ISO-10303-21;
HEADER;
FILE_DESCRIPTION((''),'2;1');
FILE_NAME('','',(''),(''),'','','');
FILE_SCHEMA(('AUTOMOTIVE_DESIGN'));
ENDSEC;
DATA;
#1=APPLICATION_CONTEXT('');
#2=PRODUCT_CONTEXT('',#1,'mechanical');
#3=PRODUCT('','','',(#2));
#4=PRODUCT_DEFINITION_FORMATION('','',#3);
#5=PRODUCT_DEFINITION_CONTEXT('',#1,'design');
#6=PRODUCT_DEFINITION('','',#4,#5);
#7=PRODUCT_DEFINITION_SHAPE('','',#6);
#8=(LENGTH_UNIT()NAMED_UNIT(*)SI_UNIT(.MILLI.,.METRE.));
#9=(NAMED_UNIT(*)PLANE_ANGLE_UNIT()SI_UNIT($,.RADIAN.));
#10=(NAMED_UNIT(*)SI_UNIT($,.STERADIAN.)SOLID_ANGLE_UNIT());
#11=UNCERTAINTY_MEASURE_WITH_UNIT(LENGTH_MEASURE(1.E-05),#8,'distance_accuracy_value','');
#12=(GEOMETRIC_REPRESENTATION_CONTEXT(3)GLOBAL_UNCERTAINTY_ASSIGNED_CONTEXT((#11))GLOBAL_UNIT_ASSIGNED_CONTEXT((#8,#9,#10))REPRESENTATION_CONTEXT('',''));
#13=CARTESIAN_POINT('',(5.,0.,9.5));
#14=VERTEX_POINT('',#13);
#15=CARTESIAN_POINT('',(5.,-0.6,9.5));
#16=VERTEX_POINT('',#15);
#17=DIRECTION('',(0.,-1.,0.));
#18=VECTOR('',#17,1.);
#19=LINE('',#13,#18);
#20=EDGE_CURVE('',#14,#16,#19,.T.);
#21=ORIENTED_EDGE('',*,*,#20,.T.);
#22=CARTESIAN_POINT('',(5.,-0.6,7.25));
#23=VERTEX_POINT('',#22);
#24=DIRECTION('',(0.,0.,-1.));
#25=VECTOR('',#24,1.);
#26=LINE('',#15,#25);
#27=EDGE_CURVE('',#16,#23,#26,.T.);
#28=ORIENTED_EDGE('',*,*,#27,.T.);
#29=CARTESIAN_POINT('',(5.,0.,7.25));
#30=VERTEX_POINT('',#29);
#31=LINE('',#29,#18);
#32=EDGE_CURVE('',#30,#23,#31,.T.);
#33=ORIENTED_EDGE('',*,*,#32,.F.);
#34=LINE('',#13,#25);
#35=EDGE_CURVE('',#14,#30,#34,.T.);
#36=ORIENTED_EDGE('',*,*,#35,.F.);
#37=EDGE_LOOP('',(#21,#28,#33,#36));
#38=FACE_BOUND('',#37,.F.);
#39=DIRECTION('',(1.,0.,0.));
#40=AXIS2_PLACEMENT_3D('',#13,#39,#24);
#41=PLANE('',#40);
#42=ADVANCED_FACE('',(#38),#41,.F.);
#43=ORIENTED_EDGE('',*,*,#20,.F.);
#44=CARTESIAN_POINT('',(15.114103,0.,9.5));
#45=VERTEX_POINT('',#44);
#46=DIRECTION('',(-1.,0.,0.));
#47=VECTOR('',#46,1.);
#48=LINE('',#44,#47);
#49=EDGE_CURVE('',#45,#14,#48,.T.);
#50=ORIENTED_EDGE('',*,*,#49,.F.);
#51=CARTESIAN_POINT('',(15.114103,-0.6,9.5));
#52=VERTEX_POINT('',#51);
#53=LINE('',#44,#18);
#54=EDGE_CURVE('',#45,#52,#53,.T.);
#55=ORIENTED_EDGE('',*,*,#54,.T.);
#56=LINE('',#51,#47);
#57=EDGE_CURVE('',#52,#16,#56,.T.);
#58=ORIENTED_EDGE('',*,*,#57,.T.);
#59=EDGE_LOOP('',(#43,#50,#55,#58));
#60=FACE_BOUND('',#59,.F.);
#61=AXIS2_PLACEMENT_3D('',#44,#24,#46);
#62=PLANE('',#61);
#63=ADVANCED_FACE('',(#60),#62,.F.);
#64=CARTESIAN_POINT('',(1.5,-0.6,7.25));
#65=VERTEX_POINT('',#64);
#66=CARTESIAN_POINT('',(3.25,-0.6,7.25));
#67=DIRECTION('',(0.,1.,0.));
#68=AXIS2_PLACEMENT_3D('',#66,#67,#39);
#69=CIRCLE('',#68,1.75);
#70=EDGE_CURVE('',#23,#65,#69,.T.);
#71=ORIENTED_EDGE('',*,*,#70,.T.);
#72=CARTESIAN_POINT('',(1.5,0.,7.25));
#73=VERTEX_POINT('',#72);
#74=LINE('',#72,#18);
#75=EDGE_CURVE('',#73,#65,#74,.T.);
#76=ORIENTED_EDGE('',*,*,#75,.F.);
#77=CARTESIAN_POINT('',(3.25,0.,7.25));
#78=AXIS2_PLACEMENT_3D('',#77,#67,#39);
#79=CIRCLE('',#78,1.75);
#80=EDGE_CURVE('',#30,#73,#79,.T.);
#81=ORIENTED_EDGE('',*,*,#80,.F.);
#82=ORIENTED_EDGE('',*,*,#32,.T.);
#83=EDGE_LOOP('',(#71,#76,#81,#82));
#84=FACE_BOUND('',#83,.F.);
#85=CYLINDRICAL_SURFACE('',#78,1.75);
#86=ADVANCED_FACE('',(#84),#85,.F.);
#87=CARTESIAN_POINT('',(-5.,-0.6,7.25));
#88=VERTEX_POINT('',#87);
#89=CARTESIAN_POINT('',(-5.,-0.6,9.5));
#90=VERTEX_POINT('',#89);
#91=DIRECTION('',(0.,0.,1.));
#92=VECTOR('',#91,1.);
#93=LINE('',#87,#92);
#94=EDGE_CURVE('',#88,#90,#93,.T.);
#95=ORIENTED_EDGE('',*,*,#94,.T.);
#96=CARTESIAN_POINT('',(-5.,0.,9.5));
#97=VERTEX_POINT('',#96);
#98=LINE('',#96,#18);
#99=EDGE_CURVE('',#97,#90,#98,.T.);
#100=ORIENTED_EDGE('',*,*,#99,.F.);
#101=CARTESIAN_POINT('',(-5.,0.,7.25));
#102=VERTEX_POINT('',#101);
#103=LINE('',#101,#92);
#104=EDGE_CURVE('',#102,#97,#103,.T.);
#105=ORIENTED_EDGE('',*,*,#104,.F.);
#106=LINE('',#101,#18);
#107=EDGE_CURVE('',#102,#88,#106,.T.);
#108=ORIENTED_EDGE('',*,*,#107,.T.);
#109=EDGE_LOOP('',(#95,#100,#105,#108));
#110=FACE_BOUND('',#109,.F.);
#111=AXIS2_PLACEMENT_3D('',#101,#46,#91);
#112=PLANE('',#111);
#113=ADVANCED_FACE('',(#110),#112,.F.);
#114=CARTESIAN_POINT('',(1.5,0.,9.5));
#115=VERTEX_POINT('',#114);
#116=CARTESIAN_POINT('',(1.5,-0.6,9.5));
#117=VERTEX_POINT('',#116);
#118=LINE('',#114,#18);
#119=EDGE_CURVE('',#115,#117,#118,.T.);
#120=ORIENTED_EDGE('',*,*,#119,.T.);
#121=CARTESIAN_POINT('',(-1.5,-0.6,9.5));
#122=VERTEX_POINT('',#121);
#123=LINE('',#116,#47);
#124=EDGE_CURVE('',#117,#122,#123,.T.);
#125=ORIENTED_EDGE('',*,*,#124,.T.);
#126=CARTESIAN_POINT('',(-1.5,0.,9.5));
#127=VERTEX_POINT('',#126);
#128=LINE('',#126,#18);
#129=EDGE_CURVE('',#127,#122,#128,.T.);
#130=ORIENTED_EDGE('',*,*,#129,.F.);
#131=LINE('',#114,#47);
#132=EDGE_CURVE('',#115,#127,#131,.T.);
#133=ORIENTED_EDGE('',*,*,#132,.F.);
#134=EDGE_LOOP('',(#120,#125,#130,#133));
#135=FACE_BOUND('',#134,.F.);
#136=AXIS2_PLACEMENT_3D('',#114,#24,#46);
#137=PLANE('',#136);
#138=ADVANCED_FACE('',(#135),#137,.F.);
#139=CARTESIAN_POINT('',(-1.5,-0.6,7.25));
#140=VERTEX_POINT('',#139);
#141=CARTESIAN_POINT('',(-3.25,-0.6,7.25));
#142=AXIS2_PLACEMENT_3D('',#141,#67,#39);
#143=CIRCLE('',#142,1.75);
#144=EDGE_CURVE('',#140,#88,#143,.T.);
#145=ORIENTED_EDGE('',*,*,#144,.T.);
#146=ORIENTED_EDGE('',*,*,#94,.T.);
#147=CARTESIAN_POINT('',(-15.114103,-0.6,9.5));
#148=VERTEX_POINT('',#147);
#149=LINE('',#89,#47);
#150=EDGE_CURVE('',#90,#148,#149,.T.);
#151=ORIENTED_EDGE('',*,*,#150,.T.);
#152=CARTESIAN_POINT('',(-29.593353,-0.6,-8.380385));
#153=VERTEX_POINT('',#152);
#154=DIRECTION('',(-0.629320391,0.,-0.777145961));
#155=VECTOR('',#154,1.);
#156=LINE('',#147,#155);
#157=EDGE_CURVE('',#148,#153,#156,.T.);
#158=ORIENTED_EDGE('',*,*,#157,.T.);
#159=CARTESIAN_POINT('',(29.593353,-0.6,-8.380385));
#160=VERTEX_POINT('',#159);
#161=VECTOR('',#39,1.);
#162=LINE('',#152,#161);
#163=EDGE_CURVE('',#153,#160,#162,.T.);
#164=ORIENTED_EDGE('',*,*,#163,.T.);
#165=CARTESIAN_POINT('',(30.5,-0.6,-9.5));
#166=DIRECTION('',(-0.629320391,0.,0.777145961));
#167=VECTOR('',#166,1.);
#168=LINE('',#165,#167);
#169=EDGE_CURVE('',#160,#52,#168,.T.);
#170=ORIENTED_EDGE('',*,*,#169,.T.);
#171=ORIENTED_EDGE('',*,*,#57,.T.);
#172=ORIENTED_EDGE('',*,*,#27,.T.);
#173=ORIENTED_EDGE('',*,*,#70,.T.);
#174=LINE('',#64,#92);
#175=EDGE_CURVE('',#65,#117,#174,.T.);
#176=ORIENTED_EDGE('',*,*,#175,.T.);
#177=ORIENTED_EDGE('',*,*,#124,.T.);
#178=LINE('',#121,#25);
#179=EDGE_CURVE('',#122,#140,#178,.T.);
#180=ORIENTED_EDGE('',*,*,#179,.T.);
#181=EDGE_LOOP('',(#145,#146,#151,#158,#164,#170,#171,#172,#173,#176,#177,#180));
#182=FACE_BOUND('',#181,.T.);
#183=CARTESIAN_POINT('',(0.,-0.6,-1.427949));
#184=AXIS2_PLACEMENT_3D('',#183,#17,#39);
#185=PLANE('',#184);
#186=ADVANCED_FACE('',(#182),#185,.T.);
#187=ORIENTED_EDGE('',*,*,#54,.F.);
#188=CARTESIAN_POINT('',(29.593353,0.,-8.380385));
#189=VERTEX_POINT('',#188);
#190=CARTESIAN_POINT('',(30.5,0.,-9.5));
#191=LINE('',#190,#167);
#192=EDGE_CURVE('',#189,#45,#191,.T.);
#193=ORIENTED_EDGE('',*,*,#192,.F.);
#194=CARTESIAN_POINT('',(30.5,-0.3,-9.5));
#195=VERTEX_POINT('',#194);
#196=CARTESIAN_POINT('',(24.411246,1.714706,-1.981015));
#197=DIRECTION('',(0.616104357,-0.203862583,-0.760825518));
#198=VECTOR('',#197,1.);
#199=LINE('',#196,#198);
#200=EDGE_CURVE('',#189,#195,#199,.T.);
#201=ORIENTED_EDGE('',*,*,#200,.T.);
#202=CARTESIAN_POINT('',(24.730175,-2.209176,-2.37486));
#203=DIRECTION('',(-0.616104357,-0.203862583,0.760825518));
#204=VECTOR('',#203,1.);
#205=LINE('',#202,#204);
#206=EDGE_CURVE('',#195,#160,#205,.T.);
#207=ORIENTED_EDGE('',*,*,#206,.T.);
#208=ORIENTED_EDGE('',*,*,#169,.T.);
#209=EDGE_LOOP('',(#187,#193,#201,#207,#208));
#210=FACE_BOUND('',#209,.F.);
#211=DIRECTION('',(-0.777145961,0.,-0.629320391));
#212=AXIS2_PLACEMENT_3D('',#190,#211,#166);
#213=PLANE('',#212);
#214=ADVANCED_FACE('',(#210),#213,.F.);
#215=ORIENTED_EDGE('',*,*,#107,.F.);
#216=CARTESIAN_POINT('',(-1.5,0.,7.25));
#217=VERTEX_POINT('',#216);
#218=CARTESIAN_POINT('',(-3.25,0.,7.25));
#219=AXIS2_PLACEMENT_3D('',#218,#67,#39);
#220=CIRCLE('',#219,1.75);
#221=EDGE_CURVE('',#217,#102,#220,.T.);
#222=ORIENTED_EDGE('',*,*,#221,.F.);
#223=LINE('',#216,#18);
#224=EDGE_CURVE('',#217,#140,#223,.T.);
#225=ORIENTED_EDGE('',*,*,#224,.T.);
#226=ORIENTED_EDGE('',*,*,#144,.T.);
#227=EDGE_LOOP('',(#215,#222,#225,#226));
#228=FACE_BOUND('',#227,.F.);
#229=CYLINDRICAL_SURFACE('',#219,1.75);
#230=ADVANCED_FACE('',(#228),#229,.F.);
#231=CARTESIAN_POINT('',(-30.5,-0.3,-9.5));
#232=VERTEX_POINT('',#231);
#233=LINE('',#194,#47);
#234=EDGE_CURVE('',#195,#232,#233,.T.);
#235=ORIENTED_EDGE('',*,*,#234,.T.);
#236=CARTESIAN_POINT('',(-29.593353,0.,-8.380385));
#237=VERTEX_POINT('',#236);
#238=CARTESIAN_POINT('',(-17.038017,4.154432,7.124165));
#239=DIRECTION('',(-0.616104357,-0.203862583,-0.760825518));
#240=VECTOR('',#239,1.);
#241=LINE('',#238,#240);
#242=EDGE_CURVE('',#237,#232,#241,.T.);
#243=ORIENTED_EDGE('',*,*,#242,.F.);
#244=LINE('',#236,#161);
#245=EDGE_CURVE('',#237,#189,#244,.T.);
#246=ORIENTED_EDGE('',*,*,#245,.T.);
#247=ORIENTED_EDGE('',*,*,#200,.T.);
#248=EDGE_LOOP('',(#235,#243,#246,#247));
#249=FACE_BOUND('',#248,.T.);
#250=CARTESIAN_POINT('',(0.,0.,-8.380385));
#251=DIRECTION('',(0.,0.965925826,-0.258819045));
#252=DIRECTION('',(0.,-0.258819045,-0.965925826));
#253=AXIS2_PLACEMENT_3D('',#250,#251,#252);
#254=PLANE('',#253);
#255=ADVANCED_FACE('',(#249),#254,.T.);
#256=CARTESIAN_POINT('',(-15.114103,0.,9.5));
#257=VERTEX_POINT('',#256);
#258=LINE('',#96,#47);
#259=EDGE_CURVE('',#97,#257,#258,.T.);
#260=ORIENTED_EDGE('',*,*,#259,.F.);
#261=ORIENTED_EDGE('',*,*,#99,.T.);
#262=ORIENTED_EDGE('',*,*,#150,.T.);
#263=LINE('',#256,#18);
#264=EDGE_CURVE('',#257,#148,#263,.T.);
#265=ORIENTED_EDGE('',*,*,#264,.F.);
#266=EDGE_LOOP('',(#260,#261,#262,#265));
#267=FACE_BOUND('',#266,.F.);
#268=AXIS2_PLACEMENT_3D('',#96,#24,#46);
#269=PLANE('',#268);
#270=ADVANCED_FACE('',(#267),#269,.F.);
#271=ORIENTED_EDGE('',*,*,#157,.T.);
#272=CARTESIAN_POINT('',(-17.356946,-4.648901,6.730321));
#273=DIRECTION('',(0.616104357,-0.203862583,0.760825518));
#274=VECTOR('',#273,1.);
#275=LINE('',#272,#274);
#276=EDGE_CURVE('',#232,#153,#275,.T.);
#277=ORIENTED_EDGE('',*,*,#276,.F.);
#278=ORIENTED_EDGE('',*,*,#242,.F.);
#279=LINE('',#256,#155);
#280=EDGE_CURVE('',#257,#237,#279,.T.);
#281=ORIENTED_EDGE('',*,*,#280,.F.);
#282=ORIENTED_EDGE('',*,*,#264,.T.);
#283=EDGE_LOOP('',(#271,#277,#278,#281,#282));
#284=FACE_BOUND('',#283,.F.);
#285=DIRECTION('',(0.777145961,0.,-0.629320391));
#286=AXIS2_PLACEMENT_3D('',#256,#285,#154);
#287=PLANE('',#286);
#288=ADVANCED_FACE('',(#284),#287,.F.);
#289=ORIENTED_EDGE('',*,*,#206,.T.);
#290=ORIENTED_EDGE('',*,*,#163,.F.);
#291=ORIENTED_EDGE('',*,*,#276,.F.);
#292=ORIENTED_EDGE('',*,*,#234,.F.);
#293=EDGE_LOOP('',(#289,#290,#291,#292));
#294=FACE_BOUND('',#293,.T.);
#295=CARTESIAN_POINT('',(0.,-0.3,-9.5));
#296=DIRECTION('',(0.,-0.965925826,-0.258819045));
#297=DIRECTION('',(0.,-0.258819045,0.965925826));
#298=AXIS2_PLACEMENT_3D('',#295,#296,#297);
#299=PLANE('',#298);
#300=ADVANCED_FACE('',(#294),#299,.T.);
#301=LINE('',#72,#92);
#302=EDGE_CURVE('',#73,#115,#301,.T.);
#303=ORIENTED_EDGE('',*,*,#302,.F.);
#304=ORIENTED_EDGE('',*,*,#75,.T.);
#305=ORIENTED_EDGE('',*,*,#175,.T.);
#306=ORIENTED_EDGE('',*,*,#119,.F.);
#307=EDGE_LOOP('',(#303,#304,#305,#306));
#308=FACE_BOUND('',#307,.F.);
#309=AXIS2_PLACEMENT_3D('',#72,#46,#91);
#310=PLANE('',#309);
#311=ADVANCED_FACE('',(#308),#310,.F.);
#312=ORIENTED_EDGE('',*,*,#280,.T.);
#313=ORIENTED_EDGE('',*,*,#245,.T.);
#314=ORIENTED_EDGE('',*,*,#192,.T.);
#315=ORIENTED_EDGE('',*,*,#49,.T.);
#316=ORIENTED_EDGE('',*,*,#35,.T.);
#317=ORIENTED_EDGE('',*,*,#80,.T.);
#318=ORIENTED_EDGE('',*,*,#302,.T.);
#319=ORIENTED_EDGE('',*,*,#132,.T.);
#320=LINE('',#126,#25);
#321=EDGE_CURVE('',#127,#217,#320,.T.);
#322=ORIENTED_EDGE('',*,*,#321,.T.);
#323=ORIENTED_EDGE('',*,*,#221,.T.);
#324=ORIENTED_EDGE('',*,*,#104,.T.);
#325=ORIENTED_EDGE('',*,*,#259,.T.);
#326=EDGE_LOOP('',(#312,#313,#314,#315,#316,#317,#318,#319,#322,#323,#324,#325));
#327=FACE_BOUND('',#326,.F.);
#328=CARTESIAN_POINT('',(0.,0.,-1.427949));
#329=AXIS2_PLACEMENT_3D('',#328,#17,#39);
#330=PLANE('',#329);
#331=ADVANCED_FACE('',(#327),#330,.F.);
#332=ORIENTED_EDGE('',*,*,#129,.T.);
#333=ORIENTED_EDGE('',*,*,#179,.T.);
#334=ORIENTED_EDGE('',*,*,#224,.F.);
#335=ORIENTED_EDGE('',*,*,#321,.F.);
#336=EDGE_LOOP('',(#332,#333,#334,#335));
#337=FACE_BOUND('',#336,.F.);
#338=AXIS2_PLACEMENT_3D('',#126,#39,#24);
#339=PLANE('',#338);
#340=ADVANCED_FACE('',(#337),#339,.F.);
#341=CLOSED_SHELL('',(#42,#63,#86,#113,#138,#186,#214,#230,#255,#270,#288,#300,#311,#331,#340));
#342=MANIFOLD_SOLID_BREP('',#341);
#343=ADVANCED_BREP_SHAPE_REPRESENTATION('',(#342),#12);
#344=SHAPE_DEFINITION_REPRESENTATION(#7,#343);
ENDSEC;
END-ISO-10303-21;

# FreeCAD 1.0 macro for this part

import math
import FreeCAD as App
import Part
import Sketcher

V = App.Vector
Q = App.Units.Quantity

doc = App.newDocument("Part")
body = doc.addObject("PartDesign::Body", "Body")

# Sketch on XZ plane
sketch1 = body.newObject("Sketcher::SketchObject", "Sketch")
sketch1.AttachmentSupport = (doc.getObject("XZ_Plane"), [""])
sketch1.MapMode = "FlatFace"
sketch1.addGeometry(Part.LineSegment(V(30.5, -9.5, 0), V(15.1, 9.5, 0)), False)
sketch1.addGeometry(Part.LineSegment(V(15.1, 9.5, 0), V(5, 9.5, 0)), False)
sketch1.addGeometry(Part.LineSegment(V(5, 9.5, 0), V(5, 7.2, 0)), False)
sketch1.addGeometry(Part.ArcOfCircle(Part.Circle(V(3.2, 7.2, 0), V(0, 0, 1), 1.8), math.radians(180), math.radians(360)), False)
sketch1.addGeometry(Part.LineSegment(V(1.5, 7.2, 0), V(1.5, 9.5, 0)), False)
sketch1.addGeometry(Part.LineSegment(V(1.5, 9.5, 0), V(-1.5, 9.5, 0)), False)
sketch1.addGeometry(Part.LineSegment(V(-1.5, 9.5, 0), V(-1.5, 7.2, 0)), False)
sketch1.addGeometry(Part.ArcOfCircle(Part.Circle(V(-3.2, 7.2, 0), V(0, 0, 1), 1.8), math.radians(180), math.radians(360)), False)
sketch1.addGeometry(Part.LineSegment(V(-5, 7.2, 0), V(-5, 9.5, 0)), False)
sketch1.addGeometry(Part.LineSegment(V(-5, 9.5, 0), V(-15.1, 9.5, 0)), False)
sketch1.addGeometry(Part.LineSegment(V(-15.1, 9.5, 0), V(-30.5, -9.5, 0)), False)
sketch1.addGeometry(Part.LineSegment(V(-30.5, -9.5, 0), V(30.5, -9.5, 0)), False)
sketch1.addConstraint(Sketcher.Constraint("Coincident", 0, 2, 1, 1))
sketch1.addConstraint(Sketcher.Constraint("Coincident", 1, 2, 2, 1))
sketch1.addConstraint(Sketcher.Constraint("Tangent", 2, 2, 3, 2))
sketch1.addConstraint(Sketcher.Constraint("Tangent", 3, 1, 4, 1))
sketch1.addConstraint(Sketcher.Constraint("Coincident", 4, 2, 5, 1))
sketch1.addConstraint(Sketcher.Constraint("Coincident", 5, 2, 6, 1))
sketch1.addConstraint(Sketcher.Constraint("Tangent", 6, 2, 7, 2))
sketch1.addConstraint(Sketcher.Constraint("Tangent", 7, 1, 8, 1))
sketch1.addConstraint(Sketcher.Constraint("Coincident", 8, 2, 9, 1))
sketch1.addConstraint(Sketcher.Constraint("Coincident", 9, 2, 10, 1))
sketch1.addConstraint(Sketcher.Constraint("Coincident", 10, 2, 11, 1))
sketch1.addConstraint(Sketcher.Constraint("Coincident", 11, 2, 0, 1))
sketch1.addConstraint(Sketcher.Constraint("Horizontal", 1))
sketch1.addConstraint(Sketcher.Constraint("Vertical", 2))
sketch1.addConstraint(Sketcher.Constraint("Vertical", 4))
sketch1.addConstraint(Sketcher.Constraint("Horizontal", 5))
sketch1.addConstraint(Sketcher.Constraint("Vertical", 6))
sketch1.addConstraint(Sketcher.Constraint("Vertical", 8))
sketch1.addConstraint(Sketcher.Constraint("Horizontal", 9))
sketch1.addConstraint(Sketcher.Constraint("Horizontal", 11))
sketch1.addConstraint(Sketcher.Constraint("Equal", 3, 7))
sketch1.addConstraint(Sketcher.Constraint("Symmetric", 3, 3, 7, 3, -2))
sketch1.addConstraint(Sketcher.Constraint("Symmetric", 0, 2, 9, 2, -2))
sketch1.addConstraint(Sketcher.Constraint("Horizontal", 1, 2, 4, 2))
sketch1.addConstraint(Sketcher.Constraint("Equal", 0, 10))
sketch1.addConstraint(Sketcher.Constraint("DistanceX", 5, 2, 5, 1, 3.0))
sketch1.addConstraint(Sketcher.Constraint("DistanceX", 11, 1, 11, 2, 61.0))
sketch1.addConstraint(Sketcher.Constraint("Angle", 0, Q("129 deg")))
sketch1.addConstraint(Sketcher.Constraint("Radius", 3, 1.75))
sketch1.addConstraint(Sketcher.Constraint("DistanceY", 10, 2, 9, 2, 19.0))
sketch1.addConstraint(Sketcher.Constraint("DistanceY", 2, 2, 2, 1, 2.25))
sketch1.addConstraint(Sketcher.Constraint("DistanceY", -1, 1, 0, 2, 9.5))
pad1 = body.newObject("PartDesign::Pad", "Pad")
pad1.Profile = sketch1
pad1.Length = 0.6

# Sketch on YZ plane
sketch2 = body.newObject("Sketcher::SketchObject", "Sketch001")
sketch2.AttachmentSupport = (doc.getObject("YZ_Plane"), [""])
sketch2.MapMode = "FlatFace"
sketch2.addGeometry(Part.LineSegment(V(-0.6, -9.5, 0), V(-0.3, -9.5, 0)), False)
sketch2.addGeometry(Part.LineSegment(V(-0.3, -9.5, 0), V(-0.6, -8.38, 0)), False)
sketch2.addGeometry(Part.LineSegment(V(-0.6, -8.38, 0), V(-0.6, -9.5, 0)), False)
sketch2.addGeometry(Part.LineSegment(V(-0.3, -9.5, 0), V(0, -9.5, 0)), False)
sketch2.addGeometry(Part.LineSegment(V(0, -9.5, 0), V(0, -8.38, 0)), False)
sketch2.addGeometry(Part.LineSegment(V(0, -8.38, 0), V(-0.3, -9.5, 0)), False)
sketch2.addConstraint(Sketcher.Constraint("Coincident", 0, 2, 1, 1))
sketch2.addConstraint(Sketcher.Constraint("Coincident", 1, 2, 2, 1))
sketch2.addConstraint(Sketcher.Constraint("Coincident", 2, 2, 0, 1))
sketch2.addConstraint(Sketcher.Constraint("Coincident", 3, 2, 4, 1))
sketch2.addConstraint(Sketcher.Constraint("Coincident", 4, 2, 5, 1))
sketch2.addConstraint(Sketcher.Constraint("Coincident", 5, 2, 3, 1))
sketch2.addConstraint(Sketcher.Constraint("Horizontal", 0))
sketch2.addConstraint(Sketcher.Constraint("Vertical", 2))
sketch2.addConstraint(Sketcher.Constraint("Horizontal", 3))
sketch2.addConstraint(Sketcher.Constraint("Vertical", 4))
sketch2.addConstraint(Sketcher.Constraint("Coincident", 5, 2, 0, 2))
sketch2.addConstraint(Sketcher.Constraint("PointOnObject", 3, 2, -2))
sketch2.addConstraint(Sketcher.Constraint("Horizontal", 1, 2, 4, 2))
sketch2.addConstraint(Sketcher.Constraint("Equal", 0, 3))
sketch2.addConstraint(Sketcher.Constraint("Angle", 1, Q("105 deg")))
sketch2.addConstraint(Sketcher.Constraint("DistanceX", 0, 1, 0, 2, 0.3))
sketch2.addConstraint(Sketcher.Constraint("DistanceY", 0, 2, -1, 1, 9.5))
pocket1 = body.newObject("PartDesign::Pocket", "Pocket")
pocket1.Profile = sketch2
pocket1.Type = "ThroughAll"
pocket1.Midplane = True

doc.recompute()
